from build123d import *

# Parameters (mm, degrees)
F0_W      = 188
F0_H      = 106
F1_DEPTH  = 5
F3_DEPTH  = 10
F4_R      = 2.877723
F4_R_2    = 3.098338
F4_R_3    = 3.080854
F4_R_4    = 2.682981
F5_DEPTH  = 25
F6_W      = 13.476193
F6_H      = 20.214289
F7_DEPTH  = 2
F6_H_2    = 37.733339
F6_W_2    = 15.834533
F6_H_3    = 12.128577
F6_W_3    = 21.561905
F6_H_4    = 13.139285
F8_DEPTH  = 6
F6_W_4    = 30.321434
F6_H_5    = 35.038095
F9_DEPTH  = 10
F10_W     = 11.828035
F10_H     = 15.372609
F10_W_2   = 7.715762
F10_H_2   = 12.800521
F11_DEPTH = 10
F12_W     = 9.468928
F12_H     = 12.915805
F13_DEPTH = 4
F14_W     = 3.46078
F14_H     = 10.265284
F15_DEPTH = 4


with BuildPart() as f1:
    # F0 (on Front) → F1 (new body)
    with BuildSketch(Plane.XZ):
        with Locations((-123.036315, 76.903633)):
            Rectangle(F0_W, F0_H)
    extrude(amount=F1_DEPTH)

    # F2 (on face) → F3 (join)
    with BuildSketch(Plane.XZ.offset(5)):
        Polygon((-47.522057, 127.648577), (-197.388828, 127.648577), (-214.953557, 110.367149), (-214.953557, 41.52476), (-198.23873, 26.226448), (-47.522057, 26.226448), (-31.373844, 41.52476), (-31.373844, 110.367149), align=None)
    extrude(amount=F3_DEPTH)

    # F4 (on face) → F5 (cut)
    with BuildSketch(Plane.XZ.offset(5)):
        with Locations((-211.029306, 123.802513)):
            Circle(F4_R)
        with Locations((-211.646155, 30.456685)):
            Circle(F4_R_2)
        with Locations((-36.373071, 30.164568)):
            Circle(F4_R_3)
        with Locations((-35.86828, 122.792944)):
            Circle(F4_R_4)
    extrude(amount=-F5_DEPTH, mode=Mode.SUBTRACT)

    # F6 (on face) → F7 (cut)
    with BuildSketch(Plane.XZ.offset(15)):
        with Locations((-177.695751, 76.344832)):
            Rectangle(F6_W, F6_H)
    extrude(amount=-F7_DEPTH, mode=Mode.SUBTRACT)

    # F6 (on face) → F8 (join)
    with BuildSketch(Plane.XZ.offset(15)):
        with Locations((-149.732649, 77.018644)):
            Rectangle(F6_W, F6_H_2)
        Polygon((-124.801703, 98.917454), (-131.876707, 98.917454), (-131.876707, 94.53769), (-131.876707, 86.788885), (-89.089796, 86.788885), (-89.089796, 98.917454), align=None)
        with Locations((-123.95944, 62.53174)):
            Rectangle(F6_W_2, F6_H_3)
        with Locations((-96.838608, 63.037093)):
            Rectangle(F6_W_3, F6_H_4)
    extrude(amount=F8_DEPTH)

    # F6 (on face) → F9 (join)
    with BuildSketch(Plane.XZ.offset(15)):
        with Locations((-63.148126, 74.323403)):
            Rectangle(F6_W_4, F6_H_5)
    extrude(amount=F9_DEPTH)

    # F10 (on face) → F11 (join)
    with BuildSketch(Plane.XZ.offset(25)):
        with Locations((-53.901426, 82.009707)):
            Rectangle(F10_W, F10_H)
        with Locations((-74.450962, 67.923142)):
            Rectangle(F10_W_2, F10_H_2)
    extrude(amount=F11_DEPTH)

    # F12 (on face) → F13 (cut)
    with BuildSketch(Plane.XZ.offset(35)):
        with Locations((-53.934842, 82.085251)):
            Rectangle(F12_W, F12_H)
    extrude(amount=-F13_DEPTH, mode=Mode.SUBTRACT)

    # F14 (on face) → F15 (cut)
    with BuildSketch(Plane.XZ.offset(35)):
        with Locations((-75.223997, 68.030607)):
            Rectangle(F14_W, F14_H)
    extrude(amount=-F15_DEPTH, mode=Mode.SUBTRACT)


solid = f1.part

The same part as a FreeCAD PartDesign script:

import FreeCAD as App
import Part
import Sketcher

V = App.Vector
Q = App.Units.Quantity

doc = App.newDocument("Part")
body = doc.addObject("PartDesign::Body", "Body")

# Sketch on XZ plane
sketch1 = doc.addObject("Sketcher::SketchObject", "Sketch")
body.addObject(sketch1)
sketch1.AttachmentSupport = (doc.XZ_Plane, [""])
sketch1.MapMode = "FlatFace"
sketch1.addGeometry([
    Part.LineSegment(V(-217, 130, 0), V(-217, 24, 0)),
    Part.LineSegment(V(-217, 24, 0), V(-29, 24, 0)),
    Part.LineSegment(V(-29, 24, 0), V(-29, 130, 0)),
    Part.LineSegment(V(-29, 130, 0), V(-217, 130, 0)),
], False)
sketch1.addConstraint([
    Sketcher.Constraint("Coincident", 0, 2, 1, 1),
    Sketcher.Constraint("Coincident", 1, 2, 2, 1),
    Sketcher.Constraint("Coincident", 2, 2, 3, 1),
    Sketcher.Constraint("Coincident", 3, 2, 0, 1),
    Sketcher.Constraint("Vertical", 0),
    Sketcher.Constraint("Horizontal", 1),
    Sketcher.Constraint("Vertical", 2),
    Sketcher.Constraint("Horizontal", 3),
    Sketcher.Constraint("DistanceX", 1, 1, 1, 2, Q("188 mm")),
    Sketcher.Constraint("DistanceY", 0, 2, 0, 1, Q("106 mm")),
    Sketcher.Constraint("DistanceX", 0, 2, -1, 1, Q("217.036315 mm")),
    Sketcher.Constraint("DistanceY", -1, 1, 0, 2, Q("23.903633 mm")),
])
pad1 = doc.addObject("PartDesign::Pad", "Pad")
body.addObject(pad1)
pad1.Profile = sketch1
pad1.Length = 5

# Sketch on XZ plane
sketch2 = doc.addObject("Sketcher::SketchObject", "Sketch001")
body.addObject(sketch2)
sketch2.AttachmentSupport = (doc.XZ_Plane, [""])
sketch2.MapMode = "FlatFace"
sketch2.AttachmentOffset = App.Placement(V(0, 0, 5), App.Rotation())
sketch2.addGeometry([
    Part.LineSegment(V(-48, 128, 0), V(-197, 128, 0)),  # 0
    Part.LineSegment(V(-197, 128, 0), V(-215, 110, 0)),  # 1
    Part.LineSegment(V(-215, 110, 0), V(-215, 42, 0)),  # 2
    Part.LineSegment(V(-215, 42, 0), V(-198, 26, 0)),  # 3
    Part.LineSegment(V(-198, 26, 0), V(-48, 26, 0)),  # 4
    Part.LineSegment(V(-48, 26, 0), V(-31, 42, 0)),  # 5
    Part.LineSegment(V(-31, 42, 0), V(-31, 110, 0)),  # 6
    Part.LineSegment(V(-31, 110, 0), V(-48, 128, 0)),  # 7
], False)
sketch2.addConstraint([
    Sketcher.Constraint("Coincident", 0, 2, 1, 1),
    Sketcher.Constraint("Coincident", 1, 2, 2, 1),
    Sketcher.Constraint("Coincident", 2, 2, 3, 1),
    Sketcher.Constraint("Coincident", 3, 2, 4, 1),
    Sketcher.Constraint("Coincident", 4, 2, 5, 1),
    Sketcher.Constraint("Coincident", 5, 2, 6, 1),
    Sketcher.Constraint("Coincident", 6, 2, 7, 1),
    Sketcher.Constraint("Coincident", 7, 2, 0, 1),
    Sketcher.Constraint("Horizontal", 0),
    Sketcher.Constraint("Vertical", 2),
    Sketcher.Constraint("Horizontal", 4),
    Sketcher.Constraint("Vertical", 6),
    Sketcher.Constraint("Horizontal", 2, 2, 5, 2),
    Sketcher.Constraint("Horizontal", 1, 2, 6, 2),
    Sketcher.Constraint("Vertical", 4, 2, 7, 2),
    Sketcher.Constraint("DistanceX", 0, 2, 0, 1, Q("149.866771 mm")),
    Sketcher.Constraint("DistanceY", 2, 2, 2, 1, Q("68.842389 mm")),
    Sketcher.Constraint("DistanceY", 3, 2, 1, 2, Q("84.140701 mm")),
    Sketcher.Constraint("DistanceX", 2, 2, 4, 2, Q("167.4315 mm")),
    Sketcher.Constraint("Distance", 1, Q("24.640768 mm")),
    Sketcher.Constraint("Distance", 5, Q("22.244171 mm")),
    Sketcher.Constraint("DistanceX", 4, 1, 4, 2, Q("150.716673 mm")),
    Sketcher.Constraint("DistanceY", -1, 1, 1, 2, Q("110.367149 mm")),
    Sketcher.Constraint("DistanceX", 3, 2, -1, 1, Q("198.23873 mm")),
])
pad2 = doc.addObject("PartDesign::Pad", "Pad001")
body.addObject(pad2)
pad2.Profile = sketch2
pad2.Length = 10

# Sketch on XZ plane
sketch3 = doc.addObject("Sketcher::SketchObject", "Sketch002")
body.addObject(sketch3)
sketch3.AttachmentSupport = (doc.XZ_Plane, [""])
sketch3.MapMode = "FlatFace"
sketch3.AttachmentOffset = App.Placement(V(0, 0, 5), App.Rotation())
sketch3.addGeometry([
    Part.Circle(V(-211, 123.8, 0), V(0, 0, 1), 2.9),
    Part.Circle(V(-211.6, 30.5, 0), V(0, 0, 1), 3.1),
    Part.Circle(V(-36.4, 30.2, 0), V(0, 0, 1), 3.1),
    Part.Circle(V(-35.9, 122.8, 0), V(0, 0, 1), 2.7),
], False)
sketch3.addConstraint([
    Sketcher.Constraint("Diameter", 3, Q("5.365962 mm")),
    Sketcher.Constraint("Diameter", 0, Q("5.755446 mm")),
    Sketcher.Constraint("Diameter", 1, Q("6.196676 mm")),
    Sketcher.Constraint("Diameter", 2, Q("6.161708 mm")),
    Sketcher.Constraint("DistanceX", 2, 3, -1, 1, Q("36.373071 mm")),
    Sketcher.Constraint("DistanceX", 3, 3, -1, 1, Q("35.86828 mm")),
    Sketcher.Constraint("DistanceX", 1, 3, 0, 3, Q("0.616849 mm")),
    Sketcher.Constraint("DistanceY", 1, 3, 0, 3, Q("93.345828 mm")),
    Sketcher.Constraint("DistanceY", 3, 3, 0, 3, Q("1.009569 mm")),
    Sketcher.Constraint("DistanceX", 0, 3, -1, 1, Q("211.029306 mm")),
    Sketcher.Constraint("DistanceY", -1, 1, 0, 3, Q("123.802513 mm")),
    Sketcher.Constraint("DistanceY", -1, 1, 2, 3, Q("30.164568 mm")),
])
pocket1 = doc.addObject("PartDesign::Pocket", "Pocket")
body.addObject(pocket1)
pocket1.Profile = sketch3
pocket1.Length = 25

# Sketch on XZ plane
sketch4 = doc.addObject("Sketcher::SketchObject", "Sketch003")
body.addObject(sketch4)
sketch4.AttachmentSupport = (doc.XZ_Plane, [""])
sketch4.MapMode = "FlatFace"
sketch4.AttachmentOffset = App.Placement(V(0, 0, 15), App.Rotation())
sketch4.addGeometry([
    Part.LineSegment(V(-184, 86, 0), V(-184, 66, 0)),
    Part.LineSegment(V(-184, 66, 0), V(-171, 66, 0)),
    Part.LineSegment(V(-171, 66, 0), V(-171, 86, 0)),
    Part.LineSegment(V(-171, 86, 0), V(-184, 86, 0)),
], False)
sketch4.addConstraint([
    Sketcher.Constraint("Coincident", 0, 2, 1, 1),
    Sketcher.Constraint("Coincident", 1, 2, 2, 1),
    Sketcher.Constraint("Coincident", 2, 2, 3, 1),
    Sketcher.Constraint("Coincident", 3, 2, 0, 1),
    Sketcher.Constraint("Vertical", 0),
    Sketcher.Constraint("Horizontal", 1),
    Sketcher.Constraint("Vertical", 2),
    Sketcher.Constraint("Horizontal", 3),
    Sketcher.Constraint("DistanceY", 0, 2, 0, 1, Q("20.214289 mm")),
    Sketcher.Constraint("DistanceX", 1, 1, 1, 2, Q("13.476193 mm")),
    Sketcher.Constraint("DistanceX", 0, 2, -1, 1, Q("184.433848 mm")),
    Sketcher.Constraint("DistanceY", -1, 1, 0, 2, Q("66.237688 mm")),
])
pocket2 = doc.addObject("PartDesign::Pocket", "Pocket001")
body.addObject(pocket2)
pocket2.Profile = sketch4
pocket2.Length = 2

# Sketch on XZ plane
sketch5 = doc.addObject("Sketcher::SketchObject", "Sketch004")
body.addObject(sketch5)
sketch5.AttachmentSupport = (doc.XZ_Plane, [""])
sketch5.MapMode = "FlatFace"
sketch5.AttachmentOffset = App.Placement(V(0, 0, 15), App.Rotation())
sketch5.addGeometry([
    Part.LineSegment(V(-156, 96, 0), V(-156, 58, 0)),  # 0
    Part.LineSegment(V(-156, 58, 0), V(-143, 58, 0)),  # 1
    Part.LineSegment(V(-143, 58, 0), V(-143, 96, 0)),  # 2
    Part.LineSegment(V(-143, 96, 0), V(-156, 96, 0)),  # 3
    Part.LineSegment(V(-132, 99, 0), V(-132, 87, 0)),  # 4
    Part.LineSegment(V(-132, 87, 0), V(-89, 87, 0)),  # 5
    Part.LineSegment(V(-89, 87, 0), V(-89, 99, 0)),  # 6
    Part.LineSegment(V(-89, 99, 0), V(-132, 99, 0)),  # 7
    Part.LineSegment(V(-132, 69, 0), V(-132, 56, 0)),  # 8
    Part.LineSegment(V(-132, 56, 0), V(-116, 56, 0)),  # 9
    Part.LineSegment(V(-116, 56, 0), V(-116, 69, 0)),  # 10
    Part.LineSegment(V(-116, 69, 0), V(-132, 69, 0)),  # 11
    Part.LineSegment(V(-108, 70, 0), V(-108, 56, 0)),  # 12
    Part.LineSegment(V(-108, 56, 0), V(-86, 56, 0)),  # 13
    Part.LineSegment(V(-86, 56, 0), V(-86, 70, 0)),  # 14
    Part.LineSegment(V(-86, 70, 0), V(-108, 70, 0)),  # 15
], False)
sketch5.addConstraint([
    Sketcher.Constraint("Coincident", 0, 2, 1, 1),
    Sketcher.Constraint("Coincident", 1, 2, 2, 1),
    Sketcher.Constraint("Coincident", 2, 2, 3, 1),
    Sketcher.Constraint("Coincident", 3, 2, 0, 1),
    Sketcher.Constraint("Coincident", 4, 2, 5, 1),
    Sketcher.Constraint("Coincident", 5, 2, 6, 1),
    Sketcher.Constraint("Coincident", 6, 2, 7, 1),
    Sketcher.Constraint("Coincident", 7, 2, 4, 1),
    Sketcher.Constraint("Coincident", 8, 2, 9, 1),
    Sketcher.Constraint("Coincident", 9, 2, 10, 1),
    Sketcher.Constraint("Coincident", 10, 2, 11, 1),
    Sketcher.Constraint("Coincident", 11, 2, 8, 1),
    Sketcher.Constraint("Coincident", 12, 2, 13, 1),
    Sketcher.Constraint("Coincident", 13, 2, 14, 1),
    Sketcher.Constraint("Coincident", 14, 2, 15, 1),
    Sketcher.Constraint("Coincident", 15, 2, 12, 1),
    Sketcher.Constraint("Vertical", 0),
    Sketcher.Constraint("Horizontal", 1),
    Sketcher.Constraint("Vertical", 2),
    Sketcher.Constraint("Horizontal", 3),
    Sketcher.Constraint("Vertical", 4),
    Sketcher.Constraint("Horizontal", 5),
    Sketcher.Constraint("Vertical", 6),
    Sketcher.Constraint("Horizontal", 7),
    Sketcher.Constraint("Vertical", 8),
    Sketcher.Constraint("Horizontal", 9),
    Sketcher.Constraint("Vertical", 10),
    Sketcher.Constraint("Horizontal", 11),
    Sketcher.Constraint("Vertical", 12),
    Sketcher.Constraint("Horizontal", 13),
    Sketcher.Constraint("Vertical", 14),
    Sketcher.Constraint("Horizontal", 15),
    Sketcher.Constraint("Horizontal", 9, 2, 12, 2),
    Sketcher.Constraint("Vertical", 7, 2, 8, 2),
    Sketcher.Constraint("DistanceX", 5, 1, 5, 2, Q("42.786911 mm")),
    Sketcher.Constraint("DistanceY", 0, 2, 0, 1, Q("37.733339 mm")),
    Sketcher.Constraint("DistanceY", 4, 2, 4, 1, Q("12.128569 mm")),
    Sketcher.Constraint("DistanceX", 1, 1, 1, 2, Q("13.476193 mm")),
    Sketcher.Constraint("DistanceX", 9, 1, 9, 2, Q("15.834533 mm")),
    Sketcher.Constraint("DistanceX", 13, 1, 13, 2, Q("21.561905 mm")),
    Sketcher.Constraint("DistanceY", 8, 2, 8, 1, Q("12.128577 mm")),
    Sketcher.Constraint("DistanceY", 12, 2, 12, 1, Q("13.139285 mm")),
    Sketcher.Constraint("DistanceY", -1, 1, 8, 2, Q("56.467452 mm")),
    Sketcher.Constraint("DistanceX", 12, 2, -1, 1, Q("107.619561 mm")),
    Sketcher.Constraint("DistanceY", 4, 2, 2, 2, Q("9.096429 mm")),
    Sketcher.Constraint("DistanceX", 3, 2, 4, 2, Q("24.594038 mm")),
    Sketcher.Constraint("DistanceY", 8, 2, 2, 2, Q("39.417862 mm")),
    Sketcher.Constraint("DistanceX", 1, 2, 12, 2, Q("35.374992 mm")),
])
pad3 = doc.addObject("PartDesign::Pad", "Pad002")
body.addObject(pad3)
pad3.Profile = sketch5
pad3.Length = 6

# Sketch on XZ plane
sketch6 = doc.addObject("Sketcher::SketchObject", "Sketch005")
body.addObject(sketch6)
sketch6.AttachmentSupport = (doc.XZ_Plane, [""])
sketch6.MapMode = "FlatFace"
sketch6.AttachmentOffset = App.Placement(V(0, 0, 15), App.Rotation())
sketch6.addGeometry([
    Part.LineSegment(V(-78, 92, 0), V(-78, 57, 0)),
    Part.LineSegment(V(-78, 57, 0), V(-48, 57, 0)),
    Part.LineSegment(V(-48, 57, 0), V(-48, 92, 0)),
    Part.LineSegment(V(-48, 92, 0), V(-78, 92, 0)),
], False)
sketch6.addConstraint([
    Sketcher.Constraint("Coincident", 0, 2, 1, 1),
    Sketcher.Constraint("Coincident", 1, 2, 2, 1),
    Sketcher.Constraint("Coincident", 2, 2, 3, 1),
    Sketcher.Constraint("Coincident", 3, 2, 0, 1),
    Sketcher.Constraint("Vertical", 0),
    Sketcher.Constraint("Horizontal", 1),
    Sketcher.Constraint("Vertical", 2),
    Sketcher.Constraint("Horizontal", 3),
    Sketcher.Constraint("DistanceX", 1, 1, 1, 2, Q("30.321434 mm")),
    Sketcher.Constraint("DistanceY", 0, 2, 0, 1, Q("35.038095 mm")),
    Sketcher.Constraint("DistanceX", 1, 2, -1, 1, Q("47.987409 mm")),
    Sketcher.Constraint("DistanceY", -1, 1, 2, 2, Q("91.84245 mm")),
])
pad4 = doc.addObject("PartDesign::Pad", "Pad003")
body.addObject(pad4)
pad4.Profile = sketch6
pad4.Length = 10

# Sketch on XZ plane
sketch7 = doc.addObject("Sketcher::SketchObject", "Sketch006")
body.addObject(sketch7)
sketch7.AttachmentSupport = (doc.XZ_Plane, [""])
sketch7.MapMode = "FlatFace"
sketch7.AttachmentOffset = App.Placement(V(0, 0, 25), App.Rotation())
sketch7.addGeometry([
    Part.LineSegment(V(-60, 90, 0), V(-60, 74, 0)),  # 0
    Part.LineSegment(V(-60, 74, 0), V(-48, 74, 0)),  # 1
    Part.LineSegment(V(-48, 74, 0), V(-48, 90, 0)),  # 2
    Part.LineSegment(V(-48, 90, 0), V(-60, 90, 0)),  # 3
    Part.LineSegment(V(-78, 74, 0), V(-78, 62, 0)),  # 4
    Part.LineSegment(V(-78, 62, 0), V(-71, 62, 0)),  # 5
    Part.LineSegment(V(-71, 62, 0), V(-71, 74, 0)),  # 6
    Part.LineSegment(V(-71, 74, 0), V(-78, 74, 0)),  # 7
], False)
sketch7.addConstraint([
    Sketcher.Constraint("Coincident", 0, 2, 1, 1),
    Sketcher.Constraint("Coincident", 1, 2, 2, 1),
    Sketcher.Constraint("Coincident", 2, 2, 3, 1),
    Sketcher.Constraint("Coincident", 3, 2, 0, 1),
    Sketcher.Constraint("Coincident", 4, 2, 5, 1),
    Sketcher.Constraint("Coincident", 5, 2, 6, 1),
    Sketcher.Constraint("Coincident", 6, 2, 7, 1),
    Sketcher.Constraint("Coincident", 7, 2, 4, 1),
    Sketcher.Constraint("Vertical", 0),
    Sketcher.Constraint("Horizontal", 1),
    Sketcher.Constraint("Vertical", 2),
    Sketcher.Constraint("Horizontal", 3),
    Sketcher.Constraint("Vertical", 4),
    Sketcher.Constraint("Horizontal", 5),
    Sketcher.Constraint("Vertical", 6),
    Sketcher.Constraint("Horizontal", 7),
    Sketcher.Constraint("Horizontal", 1, 2, 6, 2),
    Sketcher.Constraint("DistanceX", 5, 1, 5, 2, Q("7.715762 mm")),
    Sketcher.Constraint("DistanceY", 0, 2, 0, 1, Q("15.372609 mm")),
    Sketcher.Constraint("DistanceY", 4, 2, 4, 1, Q("12.800521 mm")),
    Sketcher.Constraint("DistanceX", 4, 2, 0, 2, Q("18.493399 mm")),
    Sketcher.Constraint("DistanceX", 1, 1, 1, 2, Q("11.828035 mm")),
    Sketcher.Constraint("DistanceX", 1, 2, -1, 1, Q("47.987409 mm")),
    Sketcher.Constraint("DistanceY", -1, 1, 2, 2, Q("89.696011 mm")),
])
pad5 = doc.addObject("PartDesign::Pad", "Pad004")
body.addObject(pad5)
pad5.Profile = sketch7
pad5.Length = 10

# Sketch on XZ plane
sketch8 = doc.addObject("Sketcher::SketchObject", "Sketch007")
body.addObject(sketch8)
sketch8.AttachmentSupport = (doc.XZ_Plane, [""])
sketch8.MapMode = "FlatFace"
sketch8.AttachmentOffset = App.Placement(V(0, 0, 35), App.Rotation())
sketch8.addGeometry([
    Part.LineSegment(V(-59, 89, 0), V(-59, 76, 0)),
    Part.LineSegment(V(-59, 76, 0), V(-49, 76, 0)),
    Part.LineSegment(V(-49, 76, 0), V(-49, 89, 0)),
    Part.LineSegment(V(-49, 89, 0), V(-59, 89, 0)),
], False)
sketch8.addConstraint([
    Sketcher.Constraint("Coincident", 0, 2, 1, 1),
    Sketcher.Constraint("Coincident", 1, 2, 2, 1),
    Sketcher.Constraint("Coincident", 2, 2, 3, 1),
    Sketcher.Constraint("Coincident", 3, 2, 0, 1),
    Sketcher.Constraint("Vertical", 0),
    Sketcher.Constraint("Horizontal", 1),
    Sketcher.Constraint("Vertical", 2),
    Sketcher.Constraint("Horizontal", 3),
    Sketcher.Constraint("DistanceX", 1, 1, 1, 2, Q("9.468928 mm")),
    Sketcher.Constraint("DistanceY", 0, 2, 0, 1, Q("12.915805 mm")),
    Sketcher.Constraint("DistanceY", -1, 1, 0, 2, Q("75.627348 mm")),
    Sketcher.Constraint("DistanceX", 0, 2, -1, 1, Q("58.669306 mm")),
])
pocket3 = doc.addObject("PartDesign::Pocket", "Pocket002")
body.addObject(pocket3)
pocket3.Profile = sketch8
pocket3.Length = 4

# Sketch on XZ plane
sketch9 = doc.addObject("Sketcher::SketchObject", "Sketch008")
body.addObject(sketch9)
sketch9.AttachmentSupport = (doc.XZ_Plane, [""])
sketch9.MapMode = "FlatFace"
sketch9.AttachmentOffset = App.Placement(V(0, 0, 35), App.Rotation())
sketch9.addGeometry([
    Part.LineSegment(V(-77, 73.2, 0), V(-77, 62.9, 0)),
    Part.LineSegment(V(-77, 62.9, 0), V(-73.5, 62.9, 0)),
    Part.LineSegment(V(-73.5, 62.9, 0), V(-73.5, 73.2, 0)),
    Part.LineSegment(V(-73.5, 73.2, 0), V(-77, 73.2, 0)),
], False)
sketch9.addConstraint([
    Sketcher.Constraint("Coincident", 0, 2, 1, 1),
    Sketcher.Constraint("Coincident", 1, 2, 2, 1),
    Sketcher.Constraint("Coincident", 2, 2, 3, 1),
    Sketcher.Constraint("Coincident", 3, 2, 0, 1),
    Sketcher.Constraint("Vertical", 0),
    Sketcher.Constraint("Horizontal", 1),
    Sketcher.Constraint("Vertical", 2),
    Sketcher.Constraint("Horizontal", 3),
    Sketcher.Constraint("DistanceX", 1, 1, 1, 2, Q("3.46078 mm")),
    Sketcher.Constraint("DistanceY", 0, 2, 0, 1, Q("10.265284 mm")),
    Sketcher.Constraint("DistanceY", -1, 1, 2, 2, Q("73.163249 mm")),
    Sketcher.Constraint("DistanceX", 0, 2, -1, 1, Q("76.954387 mm")),
])
pocket4 = doc.addObject("PartDesign::Pocket", "Pocket003")
body.addObject(pocket4)
pocket4.Profile = sketch9
pocket4.Length = 4

doc.recompute()
